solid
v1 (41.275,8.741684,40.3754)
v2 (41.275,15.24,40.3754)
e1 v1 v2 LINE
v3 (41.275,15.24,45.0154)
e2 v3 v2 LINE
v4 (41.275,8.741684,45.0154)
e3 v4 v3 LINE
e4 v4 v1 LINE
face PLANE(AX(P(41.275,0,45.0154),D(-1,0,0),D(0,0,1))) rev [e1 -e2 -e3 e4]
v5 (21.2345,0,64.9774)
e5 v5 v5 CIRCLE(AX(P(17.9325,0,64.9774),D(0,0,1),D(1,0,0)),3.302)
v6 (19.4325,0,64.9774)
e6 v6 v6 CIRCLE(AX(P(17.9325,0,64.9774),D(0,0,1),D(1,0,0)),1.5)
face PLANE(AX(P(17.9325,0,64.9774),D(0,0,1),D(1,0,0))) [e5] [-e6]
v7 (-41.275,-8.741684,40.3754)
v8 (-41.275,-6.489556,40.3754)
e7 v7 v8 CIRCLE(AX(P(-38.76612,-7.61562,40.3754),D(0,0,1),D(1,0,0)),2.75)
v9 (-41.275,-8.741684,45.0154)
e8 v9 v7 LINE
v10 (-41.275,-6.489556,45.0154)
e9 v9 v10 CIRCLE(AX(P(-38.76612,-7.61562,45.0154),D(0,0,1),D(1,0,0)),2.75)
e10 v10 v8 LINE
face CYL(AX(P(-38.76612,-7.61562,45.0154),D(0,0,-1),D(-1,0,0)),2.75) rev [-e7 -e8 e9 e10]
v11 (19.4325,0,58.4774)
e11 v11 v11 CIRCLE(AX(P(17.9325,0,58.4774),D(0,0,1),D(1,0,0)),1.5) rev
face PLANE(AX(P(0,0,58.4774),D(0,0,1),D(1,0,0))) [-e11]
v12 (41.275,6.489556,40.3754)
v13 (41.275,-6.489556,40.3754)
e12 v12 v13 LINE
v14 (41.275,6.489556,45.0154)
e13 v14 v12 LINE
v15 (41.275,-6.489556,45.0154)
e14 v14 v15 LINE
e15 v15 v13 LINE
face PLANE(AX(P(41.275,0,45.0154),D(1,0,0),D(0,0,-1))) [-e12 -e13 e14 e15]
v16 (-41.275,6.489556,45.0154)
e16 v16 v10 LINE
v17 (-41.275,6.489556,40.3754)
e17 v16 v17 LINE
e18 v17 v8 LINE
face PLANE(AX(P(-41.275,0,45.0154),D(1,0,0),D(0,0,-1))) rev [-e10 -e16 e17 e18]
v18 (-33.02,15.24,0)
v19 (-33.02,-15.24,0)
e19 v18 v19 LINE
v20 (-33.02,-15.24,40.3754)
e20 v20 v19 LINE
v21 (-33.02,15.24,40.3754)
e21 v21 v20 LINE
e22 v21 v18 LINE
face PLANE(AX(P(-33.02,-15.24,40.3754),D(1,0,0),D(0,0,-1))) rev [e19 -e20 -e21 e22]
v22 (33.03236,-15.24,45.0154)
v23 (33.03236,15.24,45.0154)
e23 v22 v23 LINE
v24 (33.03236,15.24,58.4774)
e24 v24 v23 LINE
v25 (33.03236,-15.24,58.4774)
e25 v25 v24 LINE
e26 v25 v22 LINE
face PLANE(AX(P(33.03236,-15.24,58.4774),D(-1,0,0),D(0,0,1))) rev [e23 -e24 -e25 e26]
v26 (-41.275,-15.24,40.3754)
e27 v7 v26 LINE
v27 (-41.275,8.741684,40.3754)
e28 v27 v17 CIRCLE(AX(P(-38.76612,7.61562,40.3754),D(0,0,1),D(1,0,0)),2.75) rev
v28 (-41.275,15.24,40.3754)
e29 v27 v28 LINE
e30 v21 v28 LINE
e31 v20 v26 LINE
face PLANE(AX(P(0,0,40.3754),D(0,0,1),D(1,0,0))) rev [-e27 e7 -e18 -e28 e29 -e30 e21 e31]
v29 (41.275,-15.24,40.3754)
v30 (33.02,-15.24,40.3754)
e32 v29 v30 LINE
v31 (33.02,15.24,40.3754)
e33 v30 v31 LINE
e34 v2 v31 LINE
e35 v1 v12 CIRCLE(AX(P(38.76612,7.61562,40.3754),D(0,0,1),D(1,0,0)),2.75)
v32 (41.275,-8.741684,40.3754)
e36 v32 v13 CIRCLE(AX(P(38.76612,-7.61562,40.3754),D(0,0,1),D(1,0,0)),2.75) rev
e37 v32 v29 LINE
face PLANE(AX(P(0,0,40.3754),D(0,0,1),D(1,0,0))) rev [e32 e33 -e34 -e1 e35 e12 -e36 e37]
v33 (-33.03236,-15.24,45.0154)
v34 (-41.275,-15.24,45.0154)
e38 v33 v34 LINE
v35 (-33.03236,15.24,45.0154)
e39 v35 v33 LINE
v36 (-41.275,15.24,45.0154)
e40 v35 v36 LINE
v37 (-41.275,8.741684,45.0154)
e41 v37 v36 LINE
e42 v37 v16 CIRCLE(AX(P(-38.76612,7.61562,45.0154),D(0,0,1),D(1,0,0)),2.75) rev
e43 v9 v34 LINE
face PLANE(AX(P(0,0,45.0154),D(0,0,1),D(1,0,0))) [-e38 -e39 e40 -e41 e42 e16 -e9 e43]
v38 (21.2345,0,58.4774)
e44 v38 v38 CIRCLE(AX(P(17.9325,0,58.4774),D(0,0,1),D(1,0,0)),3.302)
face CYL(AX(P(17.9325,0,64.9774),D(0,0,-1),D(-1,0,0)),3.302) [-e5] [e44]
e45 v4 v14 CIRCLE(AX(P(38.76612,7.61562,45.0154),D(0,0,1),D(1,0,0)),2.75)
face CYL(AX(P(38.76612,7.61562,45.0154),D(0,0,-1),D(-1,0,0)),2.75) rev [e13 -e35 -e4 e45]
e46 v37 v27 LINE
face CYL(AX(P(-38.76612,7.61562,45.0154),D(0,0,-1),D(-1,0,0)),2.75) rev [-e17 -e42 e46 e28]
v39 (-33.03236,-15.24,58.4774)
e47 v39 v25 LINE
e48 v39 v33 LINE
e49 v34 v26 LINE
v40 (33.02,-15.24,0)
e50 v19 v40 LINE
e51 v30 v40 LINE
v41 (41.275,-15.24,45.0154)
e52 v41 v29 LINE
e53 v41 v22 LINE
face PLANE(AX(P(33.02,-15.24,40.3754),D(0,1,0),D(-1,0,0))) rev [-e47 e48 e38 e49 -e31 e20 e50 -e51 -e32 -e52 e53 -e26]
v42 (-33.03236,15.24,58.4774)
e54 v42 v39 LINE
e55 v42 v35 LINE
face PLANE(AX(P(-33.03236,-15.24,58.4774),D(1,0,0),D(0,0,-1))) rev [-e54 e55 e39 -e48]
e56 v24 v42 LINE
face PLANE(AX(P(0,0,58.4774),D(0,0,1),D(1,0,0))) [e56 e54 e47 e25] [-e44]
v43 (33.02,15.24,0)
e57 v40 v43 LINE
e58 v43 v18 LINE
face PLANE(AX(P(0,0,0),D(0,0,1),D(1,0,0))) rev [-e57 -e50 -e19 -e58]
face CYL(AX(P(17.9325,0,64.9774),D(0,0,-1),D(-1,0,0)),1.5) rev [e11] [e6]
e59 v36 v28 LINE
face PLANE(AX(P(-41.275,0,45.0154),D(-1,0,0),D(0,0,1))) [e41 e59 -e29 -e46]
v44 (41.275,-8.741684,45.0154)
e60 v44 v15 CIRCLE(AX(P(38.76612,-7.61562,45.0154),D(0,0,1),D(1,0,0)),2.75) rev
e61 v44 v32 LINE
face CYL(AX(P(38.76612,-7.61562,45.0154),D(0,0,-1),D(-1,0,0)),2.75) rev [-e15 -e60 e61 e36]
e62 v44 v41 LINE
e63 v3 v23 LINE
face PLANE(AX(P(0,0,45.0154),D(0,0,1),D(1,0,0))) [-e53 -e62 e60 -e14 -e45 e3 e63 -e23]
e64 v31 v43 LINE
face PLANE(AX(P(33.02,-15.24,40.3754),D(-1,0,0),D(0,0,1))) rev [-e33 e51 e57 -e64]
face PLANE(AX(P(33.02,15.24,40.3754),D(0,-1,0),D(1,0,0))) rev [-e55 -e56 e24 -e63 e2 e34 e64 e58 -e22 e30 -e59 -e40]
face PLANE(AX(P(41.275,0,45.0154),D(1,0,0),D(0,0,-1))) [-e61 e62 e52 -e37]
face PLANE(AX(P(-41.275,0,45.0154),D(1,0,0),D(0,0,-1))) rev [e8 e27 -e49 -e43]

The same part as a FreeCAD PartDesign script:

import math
import FreeCAD as App
import Part
import Sketcher

V = App.Vector
Q = App.Units.Quantity

doc = App.newDocument("Part")
body = doc.addObject("PartDesign::Body", "Body")

sketch1 = body.newObject("Sketcher::SketchObject", "Sketch")
sketch1.AttachmentSupport = (doc.getObject("XY_Plane"), [""])
sketch1.MapMode = "FlatFace"
sketch1.addGeometry(Part.LineSegment(V(-33, 15, 0), V(-33, -15, 0)), False)
sketch1.addGeometry(Part.LineSegment(V(-33, -15, 0), V(33, -15, 0)), False)
sketch1.addGeometry(Part.LineSegment(V(33, -15, 0), V(33, 15, 0)), False)
sketch1.addGeometry(Part.LineSegment(V(33, 15, 0), V(-33, 15, 0)), False)
sketch1.addConstraint(Sketcher.Constraint("Coincident", 0, 2, 1, 1))
sketch1.addConstraint(Sketcher.Constraint("Coincident", 1, 2, 2, 1))
sketch1.addConstraint(Sketcher.Constraint("Coincident", 2, 2, 3, 1))
sketch1.addConstraint(Sketcher.Constraint("Coincident", 3, 2, 0, 1))
sketch1.addConstraint(Sketcher.Constraint("Vertical", 0))
sketch1.addConstraint(Sketcher.Constraint("Horizontal", 1))
sketch1.addConstraint(Sketcher.Constraint("Vertical", 2))
sketch1.addConstraint(Sketcher.Constraint("Horizontal", 3))
sketch1.addConstraint(Sketcher.Constraint("Symmetric", 0, 2, 2, 2, -1, 1))
sketch1.addConstraint(Sketcher.Constraint("DistanceX", 1, 1, 1, 2, Q("2.6 in")))
sketch1.addConstraint(Sketcher.Constraint("DistanceY", 0, 2, 0, 1, Q("1.2 in")))
pad1 = body.newObject("PartDesign::Pad", "Pad")
pad1.Profile = sketch1
pad1.Length = 40.3754

sketch2 = body.newObject("Sketcher::SketchObject", "Sketch001")
sketch2.AttachmentSupport = (doc.getObject("XY_Plane"), [""])
sketch2.MapMode = "FlatFace"
sketch2.AttachmentOffset = App.Placement(V(0, 0, 40.3754), App.Rotation())
sketch2.addGeometry(Part.LineSegment(V(41.3, -15.2, 0), V(41.3, -8.7, 0)), False)
sketch2.addGeometry(Part.ArcOfCircle(Part.Circle(V(38.8, -7.6, 0), V(0, 0, 1), 2.8), math.radians(24), math.radians(336)), False)
sketch2.addGeometry(Part.LineSegment(V(41.3, -6.5, 0), V(41.3, 6.5, 0)), False)
sketch2.addGeometry(Part.ArcOfCircle(Part.Circle(V(38.8, 7.6, 0), V(0, 0, 1), 2.8), math.radians(24), math.radians(336)), False)
sketch2.addGeometry(Part.LineSegment(V(41.3, 8.7, 0), V(41.3, 15.2, 0)), False)
sketch2.addGeometry(Part.LineSegment(V(41.3, 15.2, 0), V(-41.3, 15.2, 0)), False)
sketch2.addGeometry(Part.LineSegment(V(-41.3, 15.2, 0), V(-41.3, 8.7, 0)), False)
sketch2.addGeometry(Part.ArcOfCircle(Part.Circle(V(-38.8, 7.6, 0), V(0, 0, 1), 2.8), math.radians(-156), math.radians(156)), False)
sketch2.addGeometry(Part.LineSegment(V(-41.3, 6.5, 0), V(-41.3, -6.5, 0)), False)
sketch2.addGeometry(Part.ArcOfCircle(Part.Circle(V(-38.8, -7.6, 0), V(0, 0, 1), 2.8), math.radians(-156), math.radians(156)), False)
sketch2.addGeometry(Part.LineSegment(V(-41.3, -8.7, 0), V(-41.3, -15.2, 0)), False)
sketch2.addGeometry(Part.LineSegment(V(-41.3, -15.2, 0), V(41.3, -15.2, 0)), False)
sketch2.addConstraint(Sketcher.Constraint("Coincident", 0, 2, 1, 2))
sketch2.addConstraint(Sketcher.Constraint("Coincident", 1, 1, 2, 1))
sketch2.addConstraint(Sketcher.Constraint("Coincident", 2, 2, 3, 2))
sketch2.addConstraint(Sketcher.Constraint("Coincident", 3, 1, 4, 1))
sketch2.addConstraint(Sketcher.Constraint("Coincident", 4, 2, 5, 1))
sketch2.addConstraint(Sketcher.Constraint("Coincident", 5, 2, 6, 1))
sketch2.addConstraint(Sketcher.Constraint("Coincident", 6, 2, 7, 2))
sketch2.addConstraint(Sketcher.Constraint("Coincident", 7, 1, 8, 1))
sketch2.addConstraint(Sketcher.Constraint("Coincident", 8, 2, 9, 2))
sketch2.addConstraint(Sketcher.Constraint("Coincident", 9, 1, 10, 1))
sketch2.addConstraint(Sketcher.Constraint("Coincident", 10, 2, 11, 1))
sketch2.addConstraint(Sketcher.Constraint("Coincident", 11, 2, 0, 1))
sketch2.addConstraint(Sketcher.Constraint("Vertical", 0))
sketch2.addConstraint(Sketcher.Constraint("Vertical", 2))
sketch2.addConstraint(Sketcher.Constraint("Vertical", 4))
sketch2.addConstraint(Sketcher.Constraint("Horizontal", 5))
sketch2.addConstraint(Sketcher.Constraint("Vertical", 6))
sketch2.addConstraint(Sketcher.Constraint("Vertical", 8))
sketch2.addConstraint(Sketcher.Constraint("Vertical", 10))
sketch2.addConstraint(Sketcher.Constraint("Horizontal", 11))
sketch2.addConstraint(Sketcher.Constraint("Equal", 1, 3))
sketch2.addConstraint(Sketcher.Constraint("Equal", 3, 7))
sketch2.addConstraint(Sketcher.Constraint("Equal", 7, 9))
sketch2.addConstraint(Sketcher.Constraint("Symmetric", 1, 3, 7, 3, -1, 1))
sketch2.addConstraint(Sketcher.Constraint("Symmetric", 3, 3, 9, 3, -1, 1))
sketch2.addConstraint(Sketcher.Constraint("Symmetric", 4, 2, 10, 2, -1, 1))
sketch2.addConstraint(Sketcher.Constraint("Symmetric", 3, 3, 7, 3, -2))
sketch2.addConstraint(Sketcher.Constraint("Horizontal", 3, 1, 6, 2))
sketch2.addConstraint(Sketcher.Constraint("Horizontal", 2, 2, 7, 1))
sketch2.addConstraint(Sketcher.Constraint("Horizontal", 0, 2, 9, 1))
sketch2.addConstraint(Sketcher.Constraint("Vertical", 0, 2, 1, 1))
sketch2.addConstraint(Sketcher.Constraint("DistanceX", 5, 2, 5, 1, Q("3.25 in")))
sketch2.addConstraint(Sketcher.Constraint("DistanceY", -1, 1, 4, 2, Q("0.6 in")))
sketch2.addConstraint(Sketcher.Constraint("Radius", 1, 2.75))
sketch2.addConstraint(Sketcher.Constraint("DistanceY", 2, 1, 2, 2, 12.979111))
sketch2.addConstraint(Sketcher.Constraint("DistanceY", 0, 1, 0, 2, 6.498316))
pad2 = body.newObject("PartDesign::Pad", "Pad001")
pad2.Profile = sketch2
pad2.Length = 4.64

sketch3 = body.newObject("Sketcher::SketchObject", "Sketch002")
sketch3.AttachmentSupport = (doc.getObject("XY_Plane"), [""])
sketch3.MapMode = "FlatFace"
sketch3.AttachmentOffset = App.Placement(V(0, 0, 45.0154), App.Rotation())
sketch3.addGeometry(Part.LineSegment(V(-33, 15, 0), V(-33, -15, 0)), False)
sketch3.addGeometry(Part.LineSegment(V(-33, -15, 0), V(33, -15, 0)), False)
sketch3.addGeometry(Part.LineSegment(V(33, -15, 0), V(33, 15, 0)), False)
sketch3.addGeometry(Part.LineSegment(V(33, 15, 0), V(-33, 15, 0)), False)
sketch3.addConstraint(Sketcher.Constraint("Coincident", 0, 2, 1, 1))
sketch3.addConstraint(Sketcher.Constraint("Coincident", 1, 2, 2, 1))
sketch3.addConstraint(Sketcher.Constraint("Coincident", 2, 2, 3, 1))
sketch3.addConstraint(Sketcher.Constraint("Coincident", 3, 2, 0, 1))
sketch3.addConstraint(Sketcher.Constraint("Vertical", 0))
sketch3.addConstraint(Sketcher.Constraint("Horizontal", 1))
sketch3.addConstraint(Sketcher.Constraint("Vertical", 2))
sketch3.addConstraint(Sketcher.Constraint("Horizontal", 3))
sketch3.addConstraint(Sketcher.Constraint("Symmetric", 0, 2, 2, 2, -1, 1))
sketch3.addConstraint(Sketcher.Constraint("DistanceY", 0, 2, 0, 1, Q("1.2 in")))
sketch3.addConstraint(Sketcher.Constraint("DistanceX", 1, 1, 1, 2, 66.06472))
pad3 = body.newObject("PartDesign::Pad", "Pad002")
pad3.Profile = sketch3
pad3.Length = Q("0.53 in")

sketch4 = body.newObject("Sketcher::SketchObject", "Sketch003")
sketch4.AttachmentSupport = (doc.getObject("XY_Plane"), [""])
sketch4.MapMode = "FlatFace"
sketch4.AttachmentOffset = App.Placement(V(0, 0, 58.4774), App.Rotation())
sketch4.addGeometry(Part.Circle(V(17.9, 0, 0), V(0, 0, 1), 3.3), False)
sketch4.addGeometry(Part.Circle(V(17.9, 0, 0), V(0, 0, 1), 1.5), False)
sketch4.addConstraint(Sketcher.Constraint("Coincident", 1, 3, 0, 3))
sketch4.addConstraint(Sketcher.Constraint("PointOnObject", 0, 3, -1))
sketch4.addConstraint(Sketcher.Constraint("Diameter", 0, Q("0.26 in")))
sketch4.addConstraint(Sketcher.Constraint("Diameter", 1, 3.0))
sketch4.addConstraint(Sketcher.Constraint("DistanceX", -1, 1, 0, 3, 17.9325))
pad4 = body.newObject("PartDesign::Pad", "Pad003")
pad4.Profile = sketch4
pad4.Length = 6.5

doc.recompute()
